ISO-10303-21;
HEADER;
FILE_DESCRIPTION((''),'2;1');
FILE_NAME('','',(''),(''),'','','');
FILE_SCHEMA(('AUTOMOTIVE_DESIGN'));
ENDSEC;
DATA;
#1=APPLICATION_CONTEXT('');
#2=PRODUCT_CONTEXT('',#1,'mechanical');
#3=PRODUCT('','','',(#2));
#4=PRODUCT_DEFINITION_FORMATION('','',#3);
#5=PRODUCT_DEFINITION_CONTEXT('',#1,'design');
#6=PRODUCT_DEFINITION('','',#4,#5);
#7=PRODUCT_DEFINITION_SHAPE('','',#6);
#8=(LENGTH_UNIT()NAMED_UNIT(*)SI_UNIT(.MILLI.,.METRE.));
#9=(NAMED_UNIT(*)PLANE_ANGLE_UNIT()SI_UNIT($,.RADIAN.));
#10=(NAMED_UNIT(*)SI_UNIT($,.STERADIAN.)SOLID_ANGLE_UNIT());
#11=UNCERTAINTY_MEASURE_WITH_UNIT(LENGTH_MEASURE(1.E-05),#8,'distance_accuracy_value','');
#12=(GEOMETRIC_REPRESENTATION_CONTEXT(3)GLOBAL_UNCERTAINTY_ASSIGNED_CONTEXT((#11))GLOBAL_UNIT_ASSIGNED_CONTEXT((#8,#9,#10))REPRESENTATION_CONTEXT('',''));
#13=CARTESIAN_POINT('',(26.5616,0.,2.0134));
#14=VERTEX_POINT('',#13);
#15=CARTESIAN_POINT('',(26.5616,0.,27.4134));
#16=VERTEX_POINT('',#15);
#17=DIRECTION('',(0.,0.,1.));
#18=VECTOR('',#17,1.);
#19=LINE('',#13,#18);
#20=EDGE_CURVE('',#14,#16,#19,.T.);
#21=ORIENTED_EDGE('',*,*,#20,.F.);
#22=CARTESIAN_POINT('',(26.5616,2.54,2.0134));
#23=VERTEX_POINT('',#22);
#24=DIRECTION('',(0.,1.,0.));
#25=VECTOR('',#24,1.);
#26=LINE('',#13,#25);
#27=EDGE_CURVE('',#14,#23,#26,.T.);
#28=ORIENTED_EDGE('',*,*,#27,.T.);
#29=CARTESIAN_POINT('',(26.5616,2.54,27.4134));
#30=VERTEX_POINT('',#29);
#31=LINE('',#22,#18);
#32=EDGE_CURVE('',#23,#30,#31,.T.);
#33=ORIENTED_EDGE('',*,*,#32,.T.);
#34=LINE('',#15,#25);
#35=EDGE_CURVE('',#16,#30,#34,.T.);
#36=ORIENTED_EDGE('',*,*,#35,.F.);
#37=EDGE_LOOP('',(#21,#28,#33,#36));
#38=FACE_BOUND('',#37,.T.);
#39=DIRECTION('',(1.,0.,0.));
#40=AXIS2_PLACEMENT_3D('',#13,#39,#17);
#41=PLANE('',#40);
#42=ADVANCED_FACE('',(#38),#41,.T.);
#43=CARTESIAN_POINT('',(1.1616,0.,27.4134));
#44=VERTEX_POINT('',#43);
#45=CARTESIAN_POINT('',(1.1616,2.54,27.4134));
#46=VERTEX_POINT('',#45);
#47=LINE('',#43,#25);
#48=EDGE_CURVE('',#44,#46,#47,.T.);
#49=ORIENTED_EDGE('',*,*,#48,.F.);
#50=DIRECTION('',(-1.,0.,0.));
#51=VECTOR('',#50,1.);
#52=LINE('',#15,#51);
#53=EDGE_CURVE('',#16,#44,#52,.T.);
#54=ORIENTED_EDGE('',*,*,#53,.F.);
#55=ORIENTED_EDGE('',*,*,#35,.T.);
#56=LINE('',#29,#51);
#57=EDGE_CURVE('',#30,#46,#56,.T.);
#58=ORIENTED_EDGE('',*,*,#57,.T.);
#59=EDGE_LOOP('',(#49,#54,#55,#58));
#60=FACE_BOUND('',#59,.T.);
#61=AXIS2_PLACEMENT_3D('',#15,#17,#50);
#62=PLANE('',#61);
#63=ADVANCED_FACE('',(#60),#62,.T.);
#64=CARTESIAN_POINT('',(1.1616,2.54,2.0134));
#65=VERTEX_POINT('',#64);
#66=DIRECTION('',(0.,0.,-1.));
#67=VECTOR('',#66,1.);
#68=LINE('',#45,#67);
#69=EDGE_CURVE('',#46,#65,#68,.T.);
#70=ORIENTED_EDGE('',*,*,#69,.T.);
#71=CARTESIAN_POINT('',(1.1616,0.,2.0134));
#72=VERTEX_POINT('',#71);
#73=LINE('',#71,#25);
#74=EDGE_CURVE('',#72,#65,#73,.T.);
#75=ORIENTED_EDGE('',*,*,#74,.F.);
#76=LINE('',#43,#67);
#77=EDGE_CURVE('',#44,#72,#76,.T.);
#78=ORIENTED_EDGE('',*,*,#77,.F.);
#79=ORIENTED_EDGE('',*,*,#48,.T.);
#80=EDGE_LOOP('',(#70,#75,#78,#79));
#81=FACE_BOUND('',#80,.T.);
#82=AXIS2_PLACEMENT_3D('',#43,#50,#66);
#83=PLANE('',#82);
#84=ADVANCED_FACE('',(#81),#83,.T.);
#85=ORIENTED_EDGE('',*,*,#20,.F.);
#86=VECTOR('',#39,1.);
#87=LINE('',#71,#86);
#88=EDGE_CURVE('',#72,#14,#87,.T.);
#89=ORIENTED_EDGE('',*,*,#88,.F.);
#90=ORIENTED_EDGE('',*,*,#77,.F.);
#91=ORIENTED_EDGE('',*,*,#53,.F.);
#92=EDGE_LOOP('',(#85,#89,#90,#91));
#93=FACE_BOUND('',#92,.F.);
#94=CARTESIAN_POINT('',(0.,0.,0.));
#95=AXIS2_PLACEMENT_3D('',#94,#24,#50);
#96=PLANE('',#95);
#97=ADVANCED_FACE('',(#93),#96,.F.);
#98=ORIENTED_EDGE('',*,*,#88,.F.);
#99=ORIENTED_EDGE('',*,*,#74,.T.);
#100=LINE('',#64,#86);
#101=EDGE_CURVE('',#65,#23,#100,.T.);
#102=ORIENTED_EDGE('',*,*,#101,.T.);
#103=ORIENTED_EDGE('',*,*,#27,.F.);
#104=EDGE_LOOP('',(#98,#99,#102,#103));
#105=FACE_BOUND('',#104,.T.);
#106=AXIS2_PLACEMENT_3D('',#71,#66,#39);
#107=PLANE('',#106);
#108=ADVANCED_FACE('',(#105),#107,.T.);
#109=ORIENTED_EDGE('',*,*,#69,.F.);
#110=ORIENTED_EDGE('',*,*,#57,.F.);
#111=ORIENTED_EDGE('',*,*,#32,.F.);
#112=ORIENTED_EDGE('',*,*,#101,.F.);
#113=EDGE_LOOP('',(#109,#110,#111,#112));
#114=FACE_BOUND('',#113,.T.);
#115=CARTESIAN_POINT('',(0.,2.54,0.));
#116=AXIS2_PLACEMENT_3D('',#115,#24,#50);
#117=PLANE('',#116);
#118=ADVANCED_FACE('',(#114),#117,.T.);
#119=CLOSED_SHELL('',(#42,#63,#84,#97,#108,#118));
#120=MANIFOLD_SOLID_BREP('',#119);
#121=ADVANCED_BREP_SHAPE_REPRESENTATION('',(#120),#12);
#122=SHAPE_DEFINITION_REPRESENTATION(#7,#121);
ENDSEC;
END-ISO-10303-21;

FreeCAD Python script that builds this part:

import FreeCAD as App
import Part
import Sketcher
from FreeCAD import Vector
Q = App.Units.Quantity

doc = App.newDocument("Part")
body = doc.addObject("PartDesign::Body", "Body")

# Sketch on XZ plane
sketch1 = body.newObject("Sketcher::SketchObject", "Sketch")
sketch1.AttachmentSupport = (doc.getObject("XZ_Plane"), [""])
sketch1.MapMode = "FlatFace"
sketch1.addGeometry(Part.LineSegment(Vector(1.1616, 27.4134, 0), Vector(26.5616, 27.4134, 0)), False)
sketch1.addGeometry(Part.LineSegment(Vector(26.5616, 27.4134, 0), Vector(26.5616, 2.0134, 0)), False)
sketch1.addGeometry(Part.LineSegment(Vector(26.5616, 2.0134, 0), Vector(1.1616, 2.0134, 0)), False)
sketch1.addGeometry(Part.LineSegment(Vector(1.1616, 2.0134, 0), Vector(1.1616, 27.4134, 0)), False)
sketch1.addConstraint(Sketcher.Constraint("Coincident", 0, 2, 1, 1))
sketch1.addConstraint(Sketcher.Constraint("Coincident", 1, 2, 2, 1))
sketch1.addConstraint(Sketcher.Constraint("Coincident", 2, 2, 3, 1))
sketch1.addConstraint(Sketcher.Constraint("Coincident", 3, 2, 0, 1))
sketch1.addConstraint(Sketcher.Constraint("Horizontal", 0))
sketch1.addConstraint(Sketcher.Constraint("Vertical", 1))
sketch1.addConstraint(Sketcher.Constraint("Horizontal", 2))
sketch1.addConstraint(Sketcher.Constraint("Vertical", 3))
sketch1.addConstraint(Sketcher.Constraint("Equal", 2, 1))
sketch1.addConstraint(Sketcher.Constraint("DistanceX", 0, 1, 0, 2, Q("1 in")))
sketch1.addConstraint(Sketcher.Constraint("DistanceX", -1, 1, 0, 2, Q("26.5616 mm")))
sketch1.addConstraint(Sketcher.Constraint("DistanceY", -1, 1, 0, 2, Q("27.4134 mm")))
pad1 = body.newObject("PartDesign::Pad", "Pad")
pad1.Profile = sketch1
pad1.Length = Q("0.1 in")
pad1.Reversed = True

doc.recompute()
